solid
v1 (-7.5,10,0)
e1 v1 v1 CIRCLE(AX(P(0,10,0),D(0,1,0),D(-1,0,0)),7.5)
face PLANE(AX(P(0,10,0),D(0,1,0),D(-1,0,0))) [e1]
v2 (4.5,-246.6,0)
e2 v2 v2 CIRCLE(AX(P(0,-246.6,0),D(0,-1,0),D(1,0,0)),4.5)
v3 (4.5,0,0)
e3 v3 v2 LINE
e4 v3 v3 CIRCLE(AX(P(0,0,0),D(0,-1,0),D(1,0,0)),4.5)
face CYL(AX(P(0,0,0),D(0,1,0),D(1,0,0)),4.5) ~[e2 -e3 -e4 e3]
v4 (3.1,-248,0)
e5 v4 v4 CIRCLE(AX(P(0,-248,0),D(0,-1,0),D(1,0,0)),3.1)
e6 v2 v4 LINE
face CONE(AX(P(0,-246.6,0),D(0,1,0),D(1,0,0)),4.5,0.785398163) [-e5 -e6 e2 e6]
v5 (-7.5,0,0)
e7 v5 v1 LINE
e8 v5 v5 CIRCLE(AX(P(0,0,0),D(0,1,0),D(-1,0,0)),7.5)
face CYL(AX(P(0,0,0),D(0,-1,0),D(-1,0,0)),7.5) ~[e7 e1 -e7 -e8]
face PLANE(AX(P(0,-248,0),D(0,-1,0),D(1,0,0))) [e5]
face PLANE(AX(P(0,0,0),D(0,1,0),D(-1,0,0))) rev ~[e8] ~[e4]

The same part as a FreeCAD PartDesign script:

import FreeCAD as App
import Part
import Sketcher

V = App.Vector


def edges_at(feature, points):
    """Names of the edges that pass closest to the given points."""
    edges = feature.Shape.Edges
    near = lambda p: min(range(len(edges)), key=lambda i: edges[i].distToShape(Part.Vertex(*p))[0])
    return sorted({f"Edge{near(p) + 1}" for p in points})

doc = App.newDocument("Part")
params = doc.addObject("Spreadsheet::Sheet", "Params")
for row, (alias, value) in enumerate([
    ("sketch1_diameter", "9 mm"),
    ("pad1_length", "248 mm"),
    ("sketch2_diameter", "15 mm"),
    ("pad2_length", "10 mm"),
    ("chamfer_size", "1.4 mm"),
], start=1):
    params.set(f"A{row}", alias)
    params.set(f"B{row}", "=" + value)
    params.setAlias(f"B{row}", alias)

body = doc.addObject("PartDesign::Body", "Body")

sketch1 = body.newObject("Sketcher::SketchObject", "Sketch")
sketch1.AttachmentSupport = (doc.getObject("XZ_Plane"), [""])
sketch1.MapMode = "FlatFace"
sketch1.addGeometry(Part.Circle(V(0, 0, 0), V(0, 0, 1), 4.5), False)
sketch1.addConstraint([
    Sketcher.Constraint("Coincident", 0, 3, -1, 1),
    Sketcher.Constraint("Diameter", 0, 9.0),
])
sketch1.setExpression("Constraints[1]", "Params.sketch1_diameter")
pad1 = body.newObject("PartDesign::Pad", "Pad")
pad1.Profile = sketch1
pad1.setExpression("Length", "Params.pad1_length")

sketch2 = body.newObject("Sketcher::SketchObject", "Sketch001")
sketch2.AttachmentSupport = (doc.getObject("XZ_Plane"), [""])
sketch2.MapMode = "FlatFace"
sketch2.addGeometry(Part.Circle(V(0, 0, 0), V(0, 0, 1), 8), False)
sketch2.addConstraint([
    Sketcher.Constraint("Coincident", 0, 3, -1, 1),
    Sketcher.Constraint("Diameter", 0, 15.0),
])
sketch2.setExpression("Constraints[1]", "Params.sketch2_diameter")
pad2 = body.newObject("PartDesign::Pad", "Pad001")
pad2.Profile = sketch2
pad2.setExpression("Length", "Params.pad2_length")
pad2.Reversed = True
doc.recompute()

chamfer = body.newObject("PartDesign::Chamfer", "Chamfer")
chamfer.Base = (pad2, edges_at(pad2, [(-4.5, -248, 0)]))
chamfer.setExpression("Size", "Params.chamfer_size")

doc.recompute()
